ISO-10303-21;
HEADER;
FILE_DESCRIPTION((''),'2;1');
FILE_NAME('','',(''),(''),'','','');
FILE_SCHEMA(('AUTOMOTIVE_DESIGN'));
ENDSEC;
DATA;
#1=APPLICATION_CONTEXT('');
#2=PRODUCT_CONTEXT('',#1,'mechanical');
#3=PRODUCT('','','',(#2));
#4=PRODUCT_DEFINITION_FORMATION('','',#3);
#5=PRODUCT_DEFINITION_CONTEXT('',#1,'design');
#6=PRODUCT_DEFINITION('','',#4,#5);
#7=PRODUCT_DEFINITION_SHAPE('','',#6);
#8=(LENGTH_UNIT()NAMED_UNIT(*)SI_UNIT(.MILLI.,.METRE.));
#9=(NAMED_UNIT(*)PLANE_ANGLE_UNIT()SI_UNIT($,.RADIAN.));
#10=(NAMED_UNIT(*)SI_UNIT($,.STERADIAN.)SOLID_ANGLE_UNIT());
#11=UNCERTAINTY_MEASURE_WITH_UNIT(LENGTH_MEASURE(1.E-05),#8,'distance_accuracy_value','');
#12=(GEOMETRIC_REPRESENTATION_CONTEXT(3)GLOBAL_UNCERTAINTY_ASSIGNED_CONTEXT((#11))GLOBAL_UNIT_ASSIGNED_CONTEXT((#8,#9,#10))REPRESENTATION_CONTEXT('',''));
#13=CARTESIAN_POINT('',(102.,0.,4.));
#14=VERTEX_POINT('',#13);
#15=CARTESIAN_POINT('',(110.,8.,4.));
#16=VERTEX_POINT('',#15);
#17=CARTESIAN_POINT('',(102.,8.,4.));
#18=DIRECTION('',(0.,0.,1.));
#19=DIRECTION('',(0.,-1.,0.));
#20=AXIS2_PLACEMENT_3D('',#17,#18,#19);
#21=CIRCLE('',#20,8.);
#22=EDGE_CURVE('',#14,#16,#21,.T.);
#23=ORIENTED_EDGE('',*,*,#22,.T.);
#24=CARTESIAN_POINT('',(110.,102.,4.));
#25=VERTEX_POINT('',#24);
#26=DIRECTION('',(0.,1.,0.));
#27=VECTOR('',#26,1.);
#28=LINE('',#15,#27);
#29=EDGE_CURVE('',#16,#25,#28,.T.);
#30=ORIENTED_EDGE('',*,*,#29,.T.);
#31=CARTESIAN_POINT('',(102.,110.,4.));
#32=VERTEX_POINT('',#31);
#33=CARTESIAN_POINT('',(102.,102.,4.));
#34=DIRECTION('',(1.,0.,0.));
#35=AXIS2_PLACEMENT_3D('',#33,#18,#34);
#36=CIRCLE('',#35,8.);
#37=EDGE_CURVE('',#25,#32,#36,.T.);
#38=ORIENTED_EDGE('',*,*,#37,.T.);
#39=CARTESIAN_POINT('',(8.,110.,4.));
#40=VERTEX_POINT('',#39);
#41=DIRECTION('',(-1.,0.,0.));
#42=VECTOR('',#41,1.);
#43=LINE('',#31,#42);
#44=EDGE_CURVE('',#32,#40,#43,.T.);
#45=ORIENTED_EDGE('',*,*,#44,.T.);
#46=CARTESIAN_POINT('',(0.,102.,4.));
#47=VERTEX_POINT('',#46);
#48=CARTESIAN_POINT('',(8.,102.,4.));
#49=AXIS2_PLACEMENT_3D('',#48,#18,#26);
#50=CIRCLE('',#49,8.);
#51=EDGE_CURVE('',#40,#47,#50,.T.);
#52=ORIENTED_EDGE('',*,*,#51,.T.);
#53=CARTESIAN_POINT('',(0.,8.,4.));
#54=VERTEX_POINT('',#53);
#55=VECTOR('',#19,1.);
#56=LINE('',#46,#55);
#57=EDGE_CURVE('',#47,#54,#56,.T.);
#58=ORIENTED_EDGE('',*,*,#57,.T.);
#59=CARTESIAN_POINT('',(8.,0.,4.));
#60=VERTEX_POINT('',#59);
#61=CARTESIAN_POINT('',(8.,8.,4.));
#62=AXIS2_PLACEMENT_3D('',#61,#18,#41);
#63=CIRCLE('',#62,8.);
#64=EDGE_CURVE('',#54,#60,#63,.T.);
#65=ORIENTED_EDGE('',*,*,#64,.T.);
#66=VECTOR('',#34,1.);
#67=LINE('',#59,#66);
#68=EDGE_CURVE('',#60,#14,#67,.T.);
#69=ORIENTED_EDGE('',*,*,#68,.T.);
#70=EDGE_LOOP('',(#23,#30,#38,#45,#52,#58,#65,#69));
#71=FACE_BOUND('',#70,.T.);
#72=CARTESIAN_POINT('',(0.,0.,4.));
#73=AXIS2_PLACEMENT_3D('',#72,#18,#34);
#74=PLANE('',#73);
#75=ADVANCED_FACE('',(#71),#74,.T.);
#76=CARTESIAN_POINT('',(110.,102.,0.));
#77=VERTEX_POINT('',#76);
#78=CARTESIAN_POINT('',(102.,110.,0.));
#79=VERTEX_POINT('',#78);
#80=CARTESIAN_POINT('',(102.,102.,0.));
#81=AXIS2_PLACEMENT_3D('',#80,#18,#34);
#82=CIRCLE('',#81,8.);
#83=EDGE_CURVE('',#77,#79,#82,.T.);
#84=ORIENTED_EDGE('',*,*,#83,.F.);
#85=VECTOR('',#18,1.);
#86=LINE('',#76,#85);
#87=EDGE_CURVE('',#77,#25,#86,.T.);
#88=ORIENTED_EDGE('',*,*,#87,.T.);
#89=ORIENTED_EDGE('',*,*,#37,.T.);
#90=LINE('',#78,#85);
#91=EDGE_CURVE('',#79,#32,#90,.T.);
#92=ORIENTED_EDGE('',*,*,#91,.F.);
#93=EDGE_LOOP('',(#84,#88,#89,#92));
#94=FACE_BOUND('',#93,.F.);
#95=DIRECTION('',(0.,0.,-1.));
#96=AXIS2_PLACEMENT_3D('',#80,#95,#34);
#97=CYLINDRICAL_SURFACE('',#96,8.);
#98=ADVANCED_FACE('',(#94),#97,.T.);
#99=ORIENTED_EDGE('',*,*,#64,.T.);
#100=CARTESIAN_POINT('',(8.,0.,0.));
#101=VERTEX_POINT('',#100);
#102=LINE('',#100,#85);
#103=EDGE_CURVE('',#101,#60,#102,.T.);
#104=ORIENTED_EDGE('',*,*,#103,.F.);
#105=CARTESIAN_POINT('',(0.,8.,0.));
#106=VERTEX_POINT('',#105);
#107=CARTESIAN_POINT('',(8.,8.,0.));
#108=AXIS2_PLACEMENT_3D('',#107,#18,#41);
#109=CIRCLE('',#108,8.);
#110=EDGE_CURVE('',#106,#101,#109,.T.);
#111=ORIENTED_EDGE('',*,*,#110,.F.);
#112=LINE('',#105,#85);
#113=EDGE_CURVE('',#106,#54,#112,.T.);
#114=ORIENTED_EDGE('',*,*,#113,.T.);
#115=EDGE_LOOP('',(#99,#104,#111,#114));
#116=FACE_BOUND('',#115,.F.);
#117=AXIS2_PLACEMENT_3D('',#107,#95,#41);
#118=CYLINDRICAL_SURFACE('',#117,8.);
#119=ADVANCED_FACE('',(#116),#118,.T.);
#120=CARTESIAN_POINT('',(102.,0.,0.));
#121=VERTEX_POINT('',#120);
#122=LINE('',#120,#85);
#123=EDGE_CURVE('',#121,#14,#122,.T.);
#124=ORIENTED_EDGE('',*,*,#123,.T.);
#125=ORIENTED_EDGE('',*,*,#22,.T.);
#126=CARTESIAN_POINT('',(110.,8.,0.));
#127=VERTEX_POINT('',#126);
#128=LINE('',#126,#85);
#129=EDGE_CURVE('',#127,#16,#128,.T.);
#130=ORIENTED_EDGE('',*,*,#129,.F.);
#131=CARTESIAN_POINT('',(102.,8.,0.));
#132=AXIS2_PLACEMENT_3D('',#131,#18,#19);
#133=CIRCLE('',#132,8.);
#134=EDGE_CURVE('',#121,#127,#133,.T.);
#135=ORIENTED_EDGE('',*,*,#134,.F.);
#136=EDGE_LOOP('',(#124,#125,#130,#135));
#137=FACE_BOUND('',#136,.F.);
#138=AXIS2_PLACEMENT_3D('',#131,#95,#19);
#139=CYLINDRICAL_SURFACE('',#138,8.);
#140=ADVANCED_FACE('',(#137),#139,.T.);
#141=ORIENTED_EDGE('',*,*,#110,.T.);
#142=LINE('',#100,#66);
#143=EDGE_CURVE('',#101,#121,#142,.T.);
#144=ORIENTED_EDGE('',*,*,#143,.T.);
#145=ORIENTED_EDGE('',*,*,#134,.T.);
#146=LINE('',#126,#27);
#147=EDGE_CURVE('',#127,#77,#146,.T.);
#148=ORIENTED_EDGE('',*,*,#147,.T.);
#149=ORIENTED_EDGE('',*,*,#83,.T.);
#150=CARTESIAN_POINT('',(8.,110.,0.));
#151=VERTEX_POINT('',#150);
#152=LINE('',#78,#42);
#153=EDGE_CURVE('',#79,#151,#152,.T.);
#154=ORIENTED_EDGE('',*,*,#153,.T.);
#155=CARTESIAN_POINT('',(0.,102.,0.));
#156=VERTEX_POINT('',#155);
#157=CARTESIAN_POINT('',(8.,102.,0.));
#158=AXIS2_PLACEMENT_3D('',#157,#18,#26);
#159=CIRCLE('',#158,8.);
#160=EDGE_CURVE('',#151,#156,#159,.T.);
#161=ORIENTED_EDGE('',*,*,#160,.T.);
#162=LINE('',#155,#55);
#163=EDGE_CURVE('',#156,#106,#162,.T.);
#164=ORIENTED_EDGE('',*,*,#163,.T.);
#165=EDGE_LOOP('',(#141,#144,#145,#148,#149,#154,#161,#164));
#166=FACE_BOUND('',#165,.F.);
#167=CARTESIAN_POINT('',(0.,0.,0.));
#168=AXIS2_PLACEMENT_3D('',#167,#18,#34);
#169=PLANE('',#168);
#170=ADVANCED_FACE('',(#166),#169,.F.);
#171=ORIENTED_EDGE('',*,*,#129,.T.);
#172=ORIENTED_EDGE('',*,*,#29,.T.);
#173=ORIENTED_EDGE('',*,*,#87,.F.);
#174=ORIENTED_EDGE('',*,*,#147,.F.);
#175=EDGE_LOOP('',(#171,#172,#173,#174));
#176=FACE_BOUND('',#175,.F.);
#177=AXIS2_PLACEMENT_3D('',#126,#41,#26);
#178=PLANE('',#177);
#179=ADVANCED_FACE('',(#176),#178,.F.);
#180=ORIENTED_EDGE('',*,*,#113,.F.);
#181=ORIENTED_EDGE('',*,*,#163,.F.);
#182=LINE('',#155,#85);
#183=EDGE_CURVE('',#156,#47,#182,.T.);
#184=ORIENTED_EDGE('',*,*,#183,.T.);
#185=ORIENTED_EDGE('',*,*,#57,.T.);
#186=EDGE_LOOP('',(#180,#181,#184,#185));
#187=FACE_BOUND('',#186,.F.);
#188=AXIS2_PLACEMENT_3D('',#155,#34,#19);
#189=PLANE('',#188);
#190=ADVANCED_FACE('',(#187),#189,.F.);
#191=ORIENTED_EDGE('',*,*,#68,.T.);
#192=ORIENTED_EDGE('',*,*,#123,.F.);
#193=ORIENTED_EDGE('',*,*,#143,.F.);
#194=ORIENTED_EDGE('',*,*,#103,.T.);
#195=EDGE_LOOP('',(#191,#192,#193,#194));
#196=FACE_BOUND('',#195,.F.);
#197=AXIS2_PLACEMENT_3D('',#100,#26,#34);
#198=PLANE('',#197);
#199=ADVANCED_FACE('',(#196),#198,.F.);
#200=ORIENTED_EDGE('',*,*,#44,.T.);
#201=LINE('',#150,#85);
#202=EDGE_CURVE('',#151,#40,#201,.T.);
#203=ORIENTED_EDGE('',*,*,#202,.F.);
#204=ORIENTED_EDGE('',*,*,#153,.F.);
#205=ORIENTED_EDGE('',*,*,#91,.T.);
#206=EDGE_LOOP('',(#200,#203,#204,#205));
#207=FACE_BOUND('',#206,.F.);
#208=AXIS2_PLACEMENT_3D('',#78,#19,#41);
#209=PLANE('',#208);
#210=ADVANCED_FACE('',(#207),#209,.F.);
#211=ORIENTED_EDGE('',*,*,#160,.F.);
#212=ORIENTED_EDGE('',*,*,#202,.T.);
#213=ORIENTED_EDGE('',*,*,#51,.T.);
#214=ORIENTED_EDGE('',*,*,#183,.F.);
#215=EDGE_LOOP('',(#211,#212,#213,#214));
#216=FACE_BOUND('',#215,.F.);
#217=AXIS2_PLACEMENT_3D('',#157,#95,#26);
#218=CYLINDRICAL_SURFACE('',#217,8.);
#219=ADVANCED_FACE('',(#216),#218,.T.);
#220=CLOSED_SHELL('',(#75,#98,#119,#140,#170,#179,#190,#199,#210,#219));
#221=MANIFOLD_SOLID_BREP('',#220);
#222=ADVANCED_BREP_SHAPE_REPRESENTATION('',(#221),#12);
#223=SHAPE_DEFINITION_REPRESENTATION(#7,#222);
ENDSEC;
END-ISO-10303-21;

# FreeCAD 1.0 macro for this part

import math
import FreeCAD as App
import Part
import Sketcher

V = App.Vector
Q = App.Units.Quantity

doc = App.newDocument("Part")
body = doc.addObject("PartDesign::Body", "Body")

# Sketch on XY plane
sketch1 = body.newObject("Sketcher::SketchObject", "Sketch")
sketch1.AttachmentSupport = (doc.getObject("XY_Plane"), [""])
sketch1.MapMode = "FlatFace"
sketch1.addGeometry([
    Part.ArcOfCircle(Part.Circle(V(8, 8, 0), V(0, 0, 1), 8), math.radians(180), math.radians(270)),  # 0
    Part.LineSegment(V(8, 0, 0), V(102, 0, 0)),  # 1
    Part.ArcOfCircle(Part.Circle(V(102, 8, 0), V(0, 0, 1), 8), math.radians(-90), math.radians(0)),  # 2
    Part.LineSegment(V(110, 8, 0), V(110, 102, 0)),  # 3
    Part.ArcOfCircle(Part.Circle(V(102, 102, 0), V(0, 0, 1), 8), math.radians(0), math.radians(90)),  # 4
    Part.LineSegment(V(102, 110, 0), V(8, 110, 0)),  # 5
    Part.ArcOfCircle(Part.Circle(V(8, 102, 0), V(0, 0, 1), 8), math.radians(90), math.radians(180)),  # 6
    Part.LineSegment(V(0, 102, 0), V(0, 8, 0)),  # 7
], False)
sketch1.addConstraint([
    Sketcher.Constraint("Tangent", 0, 2, 1, 1),
    Sketcher.Constraint("Tangent", 1, 2, 2, 1),
    Sketcher.Constraint("Tangent", 2, 2, 3, 1),
    Sketcher.Constraint("Tangent", 3, 2, 4, 1),
    Sketcher.Constraint("Tangent", 4, 2, 5, 1),
    Sketcher.Constraint("Tangent", 5, 2, 6, 1),
    Sketcher.Constraint("Tangent", 6, 2, 7, 1),
    Sketcher.Constraint("Tangent", 7, 2, 0, 1),
    Sketcher.Constraint("Horizontal", 1),
    Sketcher.Constraint("Vertical", 3),
    Sketcher.Constraint("Horizontal", 5),
    Sketcher.Constraint("Vertical", 7),
    Sketcher.Constraint("Equal", 0, 2),
    Sketcher.Constraint("Equal", 2, 4),
    Sketcher.Constraint("Equal", 4, 6),
    Sketcher.Constraint("PointOnObject", 0, 2, -1),
    Sketcher.Constraint("PointOnObject", 6, 2, -2),
    Sketcher.Constraint("Equal", 5, 3),
    Sketcher.Constraint("Radius", 0, Q("8 mm")),
    Sketcher.Constraint("DistanceX", -1, 1, 2, 2, Q("110 mm")),
])
pad1 = body.newObject("PartDesign::Pad", "Pad")
pad1.Profile = sketch1
pad1.Length = 4

doc.recompute()
